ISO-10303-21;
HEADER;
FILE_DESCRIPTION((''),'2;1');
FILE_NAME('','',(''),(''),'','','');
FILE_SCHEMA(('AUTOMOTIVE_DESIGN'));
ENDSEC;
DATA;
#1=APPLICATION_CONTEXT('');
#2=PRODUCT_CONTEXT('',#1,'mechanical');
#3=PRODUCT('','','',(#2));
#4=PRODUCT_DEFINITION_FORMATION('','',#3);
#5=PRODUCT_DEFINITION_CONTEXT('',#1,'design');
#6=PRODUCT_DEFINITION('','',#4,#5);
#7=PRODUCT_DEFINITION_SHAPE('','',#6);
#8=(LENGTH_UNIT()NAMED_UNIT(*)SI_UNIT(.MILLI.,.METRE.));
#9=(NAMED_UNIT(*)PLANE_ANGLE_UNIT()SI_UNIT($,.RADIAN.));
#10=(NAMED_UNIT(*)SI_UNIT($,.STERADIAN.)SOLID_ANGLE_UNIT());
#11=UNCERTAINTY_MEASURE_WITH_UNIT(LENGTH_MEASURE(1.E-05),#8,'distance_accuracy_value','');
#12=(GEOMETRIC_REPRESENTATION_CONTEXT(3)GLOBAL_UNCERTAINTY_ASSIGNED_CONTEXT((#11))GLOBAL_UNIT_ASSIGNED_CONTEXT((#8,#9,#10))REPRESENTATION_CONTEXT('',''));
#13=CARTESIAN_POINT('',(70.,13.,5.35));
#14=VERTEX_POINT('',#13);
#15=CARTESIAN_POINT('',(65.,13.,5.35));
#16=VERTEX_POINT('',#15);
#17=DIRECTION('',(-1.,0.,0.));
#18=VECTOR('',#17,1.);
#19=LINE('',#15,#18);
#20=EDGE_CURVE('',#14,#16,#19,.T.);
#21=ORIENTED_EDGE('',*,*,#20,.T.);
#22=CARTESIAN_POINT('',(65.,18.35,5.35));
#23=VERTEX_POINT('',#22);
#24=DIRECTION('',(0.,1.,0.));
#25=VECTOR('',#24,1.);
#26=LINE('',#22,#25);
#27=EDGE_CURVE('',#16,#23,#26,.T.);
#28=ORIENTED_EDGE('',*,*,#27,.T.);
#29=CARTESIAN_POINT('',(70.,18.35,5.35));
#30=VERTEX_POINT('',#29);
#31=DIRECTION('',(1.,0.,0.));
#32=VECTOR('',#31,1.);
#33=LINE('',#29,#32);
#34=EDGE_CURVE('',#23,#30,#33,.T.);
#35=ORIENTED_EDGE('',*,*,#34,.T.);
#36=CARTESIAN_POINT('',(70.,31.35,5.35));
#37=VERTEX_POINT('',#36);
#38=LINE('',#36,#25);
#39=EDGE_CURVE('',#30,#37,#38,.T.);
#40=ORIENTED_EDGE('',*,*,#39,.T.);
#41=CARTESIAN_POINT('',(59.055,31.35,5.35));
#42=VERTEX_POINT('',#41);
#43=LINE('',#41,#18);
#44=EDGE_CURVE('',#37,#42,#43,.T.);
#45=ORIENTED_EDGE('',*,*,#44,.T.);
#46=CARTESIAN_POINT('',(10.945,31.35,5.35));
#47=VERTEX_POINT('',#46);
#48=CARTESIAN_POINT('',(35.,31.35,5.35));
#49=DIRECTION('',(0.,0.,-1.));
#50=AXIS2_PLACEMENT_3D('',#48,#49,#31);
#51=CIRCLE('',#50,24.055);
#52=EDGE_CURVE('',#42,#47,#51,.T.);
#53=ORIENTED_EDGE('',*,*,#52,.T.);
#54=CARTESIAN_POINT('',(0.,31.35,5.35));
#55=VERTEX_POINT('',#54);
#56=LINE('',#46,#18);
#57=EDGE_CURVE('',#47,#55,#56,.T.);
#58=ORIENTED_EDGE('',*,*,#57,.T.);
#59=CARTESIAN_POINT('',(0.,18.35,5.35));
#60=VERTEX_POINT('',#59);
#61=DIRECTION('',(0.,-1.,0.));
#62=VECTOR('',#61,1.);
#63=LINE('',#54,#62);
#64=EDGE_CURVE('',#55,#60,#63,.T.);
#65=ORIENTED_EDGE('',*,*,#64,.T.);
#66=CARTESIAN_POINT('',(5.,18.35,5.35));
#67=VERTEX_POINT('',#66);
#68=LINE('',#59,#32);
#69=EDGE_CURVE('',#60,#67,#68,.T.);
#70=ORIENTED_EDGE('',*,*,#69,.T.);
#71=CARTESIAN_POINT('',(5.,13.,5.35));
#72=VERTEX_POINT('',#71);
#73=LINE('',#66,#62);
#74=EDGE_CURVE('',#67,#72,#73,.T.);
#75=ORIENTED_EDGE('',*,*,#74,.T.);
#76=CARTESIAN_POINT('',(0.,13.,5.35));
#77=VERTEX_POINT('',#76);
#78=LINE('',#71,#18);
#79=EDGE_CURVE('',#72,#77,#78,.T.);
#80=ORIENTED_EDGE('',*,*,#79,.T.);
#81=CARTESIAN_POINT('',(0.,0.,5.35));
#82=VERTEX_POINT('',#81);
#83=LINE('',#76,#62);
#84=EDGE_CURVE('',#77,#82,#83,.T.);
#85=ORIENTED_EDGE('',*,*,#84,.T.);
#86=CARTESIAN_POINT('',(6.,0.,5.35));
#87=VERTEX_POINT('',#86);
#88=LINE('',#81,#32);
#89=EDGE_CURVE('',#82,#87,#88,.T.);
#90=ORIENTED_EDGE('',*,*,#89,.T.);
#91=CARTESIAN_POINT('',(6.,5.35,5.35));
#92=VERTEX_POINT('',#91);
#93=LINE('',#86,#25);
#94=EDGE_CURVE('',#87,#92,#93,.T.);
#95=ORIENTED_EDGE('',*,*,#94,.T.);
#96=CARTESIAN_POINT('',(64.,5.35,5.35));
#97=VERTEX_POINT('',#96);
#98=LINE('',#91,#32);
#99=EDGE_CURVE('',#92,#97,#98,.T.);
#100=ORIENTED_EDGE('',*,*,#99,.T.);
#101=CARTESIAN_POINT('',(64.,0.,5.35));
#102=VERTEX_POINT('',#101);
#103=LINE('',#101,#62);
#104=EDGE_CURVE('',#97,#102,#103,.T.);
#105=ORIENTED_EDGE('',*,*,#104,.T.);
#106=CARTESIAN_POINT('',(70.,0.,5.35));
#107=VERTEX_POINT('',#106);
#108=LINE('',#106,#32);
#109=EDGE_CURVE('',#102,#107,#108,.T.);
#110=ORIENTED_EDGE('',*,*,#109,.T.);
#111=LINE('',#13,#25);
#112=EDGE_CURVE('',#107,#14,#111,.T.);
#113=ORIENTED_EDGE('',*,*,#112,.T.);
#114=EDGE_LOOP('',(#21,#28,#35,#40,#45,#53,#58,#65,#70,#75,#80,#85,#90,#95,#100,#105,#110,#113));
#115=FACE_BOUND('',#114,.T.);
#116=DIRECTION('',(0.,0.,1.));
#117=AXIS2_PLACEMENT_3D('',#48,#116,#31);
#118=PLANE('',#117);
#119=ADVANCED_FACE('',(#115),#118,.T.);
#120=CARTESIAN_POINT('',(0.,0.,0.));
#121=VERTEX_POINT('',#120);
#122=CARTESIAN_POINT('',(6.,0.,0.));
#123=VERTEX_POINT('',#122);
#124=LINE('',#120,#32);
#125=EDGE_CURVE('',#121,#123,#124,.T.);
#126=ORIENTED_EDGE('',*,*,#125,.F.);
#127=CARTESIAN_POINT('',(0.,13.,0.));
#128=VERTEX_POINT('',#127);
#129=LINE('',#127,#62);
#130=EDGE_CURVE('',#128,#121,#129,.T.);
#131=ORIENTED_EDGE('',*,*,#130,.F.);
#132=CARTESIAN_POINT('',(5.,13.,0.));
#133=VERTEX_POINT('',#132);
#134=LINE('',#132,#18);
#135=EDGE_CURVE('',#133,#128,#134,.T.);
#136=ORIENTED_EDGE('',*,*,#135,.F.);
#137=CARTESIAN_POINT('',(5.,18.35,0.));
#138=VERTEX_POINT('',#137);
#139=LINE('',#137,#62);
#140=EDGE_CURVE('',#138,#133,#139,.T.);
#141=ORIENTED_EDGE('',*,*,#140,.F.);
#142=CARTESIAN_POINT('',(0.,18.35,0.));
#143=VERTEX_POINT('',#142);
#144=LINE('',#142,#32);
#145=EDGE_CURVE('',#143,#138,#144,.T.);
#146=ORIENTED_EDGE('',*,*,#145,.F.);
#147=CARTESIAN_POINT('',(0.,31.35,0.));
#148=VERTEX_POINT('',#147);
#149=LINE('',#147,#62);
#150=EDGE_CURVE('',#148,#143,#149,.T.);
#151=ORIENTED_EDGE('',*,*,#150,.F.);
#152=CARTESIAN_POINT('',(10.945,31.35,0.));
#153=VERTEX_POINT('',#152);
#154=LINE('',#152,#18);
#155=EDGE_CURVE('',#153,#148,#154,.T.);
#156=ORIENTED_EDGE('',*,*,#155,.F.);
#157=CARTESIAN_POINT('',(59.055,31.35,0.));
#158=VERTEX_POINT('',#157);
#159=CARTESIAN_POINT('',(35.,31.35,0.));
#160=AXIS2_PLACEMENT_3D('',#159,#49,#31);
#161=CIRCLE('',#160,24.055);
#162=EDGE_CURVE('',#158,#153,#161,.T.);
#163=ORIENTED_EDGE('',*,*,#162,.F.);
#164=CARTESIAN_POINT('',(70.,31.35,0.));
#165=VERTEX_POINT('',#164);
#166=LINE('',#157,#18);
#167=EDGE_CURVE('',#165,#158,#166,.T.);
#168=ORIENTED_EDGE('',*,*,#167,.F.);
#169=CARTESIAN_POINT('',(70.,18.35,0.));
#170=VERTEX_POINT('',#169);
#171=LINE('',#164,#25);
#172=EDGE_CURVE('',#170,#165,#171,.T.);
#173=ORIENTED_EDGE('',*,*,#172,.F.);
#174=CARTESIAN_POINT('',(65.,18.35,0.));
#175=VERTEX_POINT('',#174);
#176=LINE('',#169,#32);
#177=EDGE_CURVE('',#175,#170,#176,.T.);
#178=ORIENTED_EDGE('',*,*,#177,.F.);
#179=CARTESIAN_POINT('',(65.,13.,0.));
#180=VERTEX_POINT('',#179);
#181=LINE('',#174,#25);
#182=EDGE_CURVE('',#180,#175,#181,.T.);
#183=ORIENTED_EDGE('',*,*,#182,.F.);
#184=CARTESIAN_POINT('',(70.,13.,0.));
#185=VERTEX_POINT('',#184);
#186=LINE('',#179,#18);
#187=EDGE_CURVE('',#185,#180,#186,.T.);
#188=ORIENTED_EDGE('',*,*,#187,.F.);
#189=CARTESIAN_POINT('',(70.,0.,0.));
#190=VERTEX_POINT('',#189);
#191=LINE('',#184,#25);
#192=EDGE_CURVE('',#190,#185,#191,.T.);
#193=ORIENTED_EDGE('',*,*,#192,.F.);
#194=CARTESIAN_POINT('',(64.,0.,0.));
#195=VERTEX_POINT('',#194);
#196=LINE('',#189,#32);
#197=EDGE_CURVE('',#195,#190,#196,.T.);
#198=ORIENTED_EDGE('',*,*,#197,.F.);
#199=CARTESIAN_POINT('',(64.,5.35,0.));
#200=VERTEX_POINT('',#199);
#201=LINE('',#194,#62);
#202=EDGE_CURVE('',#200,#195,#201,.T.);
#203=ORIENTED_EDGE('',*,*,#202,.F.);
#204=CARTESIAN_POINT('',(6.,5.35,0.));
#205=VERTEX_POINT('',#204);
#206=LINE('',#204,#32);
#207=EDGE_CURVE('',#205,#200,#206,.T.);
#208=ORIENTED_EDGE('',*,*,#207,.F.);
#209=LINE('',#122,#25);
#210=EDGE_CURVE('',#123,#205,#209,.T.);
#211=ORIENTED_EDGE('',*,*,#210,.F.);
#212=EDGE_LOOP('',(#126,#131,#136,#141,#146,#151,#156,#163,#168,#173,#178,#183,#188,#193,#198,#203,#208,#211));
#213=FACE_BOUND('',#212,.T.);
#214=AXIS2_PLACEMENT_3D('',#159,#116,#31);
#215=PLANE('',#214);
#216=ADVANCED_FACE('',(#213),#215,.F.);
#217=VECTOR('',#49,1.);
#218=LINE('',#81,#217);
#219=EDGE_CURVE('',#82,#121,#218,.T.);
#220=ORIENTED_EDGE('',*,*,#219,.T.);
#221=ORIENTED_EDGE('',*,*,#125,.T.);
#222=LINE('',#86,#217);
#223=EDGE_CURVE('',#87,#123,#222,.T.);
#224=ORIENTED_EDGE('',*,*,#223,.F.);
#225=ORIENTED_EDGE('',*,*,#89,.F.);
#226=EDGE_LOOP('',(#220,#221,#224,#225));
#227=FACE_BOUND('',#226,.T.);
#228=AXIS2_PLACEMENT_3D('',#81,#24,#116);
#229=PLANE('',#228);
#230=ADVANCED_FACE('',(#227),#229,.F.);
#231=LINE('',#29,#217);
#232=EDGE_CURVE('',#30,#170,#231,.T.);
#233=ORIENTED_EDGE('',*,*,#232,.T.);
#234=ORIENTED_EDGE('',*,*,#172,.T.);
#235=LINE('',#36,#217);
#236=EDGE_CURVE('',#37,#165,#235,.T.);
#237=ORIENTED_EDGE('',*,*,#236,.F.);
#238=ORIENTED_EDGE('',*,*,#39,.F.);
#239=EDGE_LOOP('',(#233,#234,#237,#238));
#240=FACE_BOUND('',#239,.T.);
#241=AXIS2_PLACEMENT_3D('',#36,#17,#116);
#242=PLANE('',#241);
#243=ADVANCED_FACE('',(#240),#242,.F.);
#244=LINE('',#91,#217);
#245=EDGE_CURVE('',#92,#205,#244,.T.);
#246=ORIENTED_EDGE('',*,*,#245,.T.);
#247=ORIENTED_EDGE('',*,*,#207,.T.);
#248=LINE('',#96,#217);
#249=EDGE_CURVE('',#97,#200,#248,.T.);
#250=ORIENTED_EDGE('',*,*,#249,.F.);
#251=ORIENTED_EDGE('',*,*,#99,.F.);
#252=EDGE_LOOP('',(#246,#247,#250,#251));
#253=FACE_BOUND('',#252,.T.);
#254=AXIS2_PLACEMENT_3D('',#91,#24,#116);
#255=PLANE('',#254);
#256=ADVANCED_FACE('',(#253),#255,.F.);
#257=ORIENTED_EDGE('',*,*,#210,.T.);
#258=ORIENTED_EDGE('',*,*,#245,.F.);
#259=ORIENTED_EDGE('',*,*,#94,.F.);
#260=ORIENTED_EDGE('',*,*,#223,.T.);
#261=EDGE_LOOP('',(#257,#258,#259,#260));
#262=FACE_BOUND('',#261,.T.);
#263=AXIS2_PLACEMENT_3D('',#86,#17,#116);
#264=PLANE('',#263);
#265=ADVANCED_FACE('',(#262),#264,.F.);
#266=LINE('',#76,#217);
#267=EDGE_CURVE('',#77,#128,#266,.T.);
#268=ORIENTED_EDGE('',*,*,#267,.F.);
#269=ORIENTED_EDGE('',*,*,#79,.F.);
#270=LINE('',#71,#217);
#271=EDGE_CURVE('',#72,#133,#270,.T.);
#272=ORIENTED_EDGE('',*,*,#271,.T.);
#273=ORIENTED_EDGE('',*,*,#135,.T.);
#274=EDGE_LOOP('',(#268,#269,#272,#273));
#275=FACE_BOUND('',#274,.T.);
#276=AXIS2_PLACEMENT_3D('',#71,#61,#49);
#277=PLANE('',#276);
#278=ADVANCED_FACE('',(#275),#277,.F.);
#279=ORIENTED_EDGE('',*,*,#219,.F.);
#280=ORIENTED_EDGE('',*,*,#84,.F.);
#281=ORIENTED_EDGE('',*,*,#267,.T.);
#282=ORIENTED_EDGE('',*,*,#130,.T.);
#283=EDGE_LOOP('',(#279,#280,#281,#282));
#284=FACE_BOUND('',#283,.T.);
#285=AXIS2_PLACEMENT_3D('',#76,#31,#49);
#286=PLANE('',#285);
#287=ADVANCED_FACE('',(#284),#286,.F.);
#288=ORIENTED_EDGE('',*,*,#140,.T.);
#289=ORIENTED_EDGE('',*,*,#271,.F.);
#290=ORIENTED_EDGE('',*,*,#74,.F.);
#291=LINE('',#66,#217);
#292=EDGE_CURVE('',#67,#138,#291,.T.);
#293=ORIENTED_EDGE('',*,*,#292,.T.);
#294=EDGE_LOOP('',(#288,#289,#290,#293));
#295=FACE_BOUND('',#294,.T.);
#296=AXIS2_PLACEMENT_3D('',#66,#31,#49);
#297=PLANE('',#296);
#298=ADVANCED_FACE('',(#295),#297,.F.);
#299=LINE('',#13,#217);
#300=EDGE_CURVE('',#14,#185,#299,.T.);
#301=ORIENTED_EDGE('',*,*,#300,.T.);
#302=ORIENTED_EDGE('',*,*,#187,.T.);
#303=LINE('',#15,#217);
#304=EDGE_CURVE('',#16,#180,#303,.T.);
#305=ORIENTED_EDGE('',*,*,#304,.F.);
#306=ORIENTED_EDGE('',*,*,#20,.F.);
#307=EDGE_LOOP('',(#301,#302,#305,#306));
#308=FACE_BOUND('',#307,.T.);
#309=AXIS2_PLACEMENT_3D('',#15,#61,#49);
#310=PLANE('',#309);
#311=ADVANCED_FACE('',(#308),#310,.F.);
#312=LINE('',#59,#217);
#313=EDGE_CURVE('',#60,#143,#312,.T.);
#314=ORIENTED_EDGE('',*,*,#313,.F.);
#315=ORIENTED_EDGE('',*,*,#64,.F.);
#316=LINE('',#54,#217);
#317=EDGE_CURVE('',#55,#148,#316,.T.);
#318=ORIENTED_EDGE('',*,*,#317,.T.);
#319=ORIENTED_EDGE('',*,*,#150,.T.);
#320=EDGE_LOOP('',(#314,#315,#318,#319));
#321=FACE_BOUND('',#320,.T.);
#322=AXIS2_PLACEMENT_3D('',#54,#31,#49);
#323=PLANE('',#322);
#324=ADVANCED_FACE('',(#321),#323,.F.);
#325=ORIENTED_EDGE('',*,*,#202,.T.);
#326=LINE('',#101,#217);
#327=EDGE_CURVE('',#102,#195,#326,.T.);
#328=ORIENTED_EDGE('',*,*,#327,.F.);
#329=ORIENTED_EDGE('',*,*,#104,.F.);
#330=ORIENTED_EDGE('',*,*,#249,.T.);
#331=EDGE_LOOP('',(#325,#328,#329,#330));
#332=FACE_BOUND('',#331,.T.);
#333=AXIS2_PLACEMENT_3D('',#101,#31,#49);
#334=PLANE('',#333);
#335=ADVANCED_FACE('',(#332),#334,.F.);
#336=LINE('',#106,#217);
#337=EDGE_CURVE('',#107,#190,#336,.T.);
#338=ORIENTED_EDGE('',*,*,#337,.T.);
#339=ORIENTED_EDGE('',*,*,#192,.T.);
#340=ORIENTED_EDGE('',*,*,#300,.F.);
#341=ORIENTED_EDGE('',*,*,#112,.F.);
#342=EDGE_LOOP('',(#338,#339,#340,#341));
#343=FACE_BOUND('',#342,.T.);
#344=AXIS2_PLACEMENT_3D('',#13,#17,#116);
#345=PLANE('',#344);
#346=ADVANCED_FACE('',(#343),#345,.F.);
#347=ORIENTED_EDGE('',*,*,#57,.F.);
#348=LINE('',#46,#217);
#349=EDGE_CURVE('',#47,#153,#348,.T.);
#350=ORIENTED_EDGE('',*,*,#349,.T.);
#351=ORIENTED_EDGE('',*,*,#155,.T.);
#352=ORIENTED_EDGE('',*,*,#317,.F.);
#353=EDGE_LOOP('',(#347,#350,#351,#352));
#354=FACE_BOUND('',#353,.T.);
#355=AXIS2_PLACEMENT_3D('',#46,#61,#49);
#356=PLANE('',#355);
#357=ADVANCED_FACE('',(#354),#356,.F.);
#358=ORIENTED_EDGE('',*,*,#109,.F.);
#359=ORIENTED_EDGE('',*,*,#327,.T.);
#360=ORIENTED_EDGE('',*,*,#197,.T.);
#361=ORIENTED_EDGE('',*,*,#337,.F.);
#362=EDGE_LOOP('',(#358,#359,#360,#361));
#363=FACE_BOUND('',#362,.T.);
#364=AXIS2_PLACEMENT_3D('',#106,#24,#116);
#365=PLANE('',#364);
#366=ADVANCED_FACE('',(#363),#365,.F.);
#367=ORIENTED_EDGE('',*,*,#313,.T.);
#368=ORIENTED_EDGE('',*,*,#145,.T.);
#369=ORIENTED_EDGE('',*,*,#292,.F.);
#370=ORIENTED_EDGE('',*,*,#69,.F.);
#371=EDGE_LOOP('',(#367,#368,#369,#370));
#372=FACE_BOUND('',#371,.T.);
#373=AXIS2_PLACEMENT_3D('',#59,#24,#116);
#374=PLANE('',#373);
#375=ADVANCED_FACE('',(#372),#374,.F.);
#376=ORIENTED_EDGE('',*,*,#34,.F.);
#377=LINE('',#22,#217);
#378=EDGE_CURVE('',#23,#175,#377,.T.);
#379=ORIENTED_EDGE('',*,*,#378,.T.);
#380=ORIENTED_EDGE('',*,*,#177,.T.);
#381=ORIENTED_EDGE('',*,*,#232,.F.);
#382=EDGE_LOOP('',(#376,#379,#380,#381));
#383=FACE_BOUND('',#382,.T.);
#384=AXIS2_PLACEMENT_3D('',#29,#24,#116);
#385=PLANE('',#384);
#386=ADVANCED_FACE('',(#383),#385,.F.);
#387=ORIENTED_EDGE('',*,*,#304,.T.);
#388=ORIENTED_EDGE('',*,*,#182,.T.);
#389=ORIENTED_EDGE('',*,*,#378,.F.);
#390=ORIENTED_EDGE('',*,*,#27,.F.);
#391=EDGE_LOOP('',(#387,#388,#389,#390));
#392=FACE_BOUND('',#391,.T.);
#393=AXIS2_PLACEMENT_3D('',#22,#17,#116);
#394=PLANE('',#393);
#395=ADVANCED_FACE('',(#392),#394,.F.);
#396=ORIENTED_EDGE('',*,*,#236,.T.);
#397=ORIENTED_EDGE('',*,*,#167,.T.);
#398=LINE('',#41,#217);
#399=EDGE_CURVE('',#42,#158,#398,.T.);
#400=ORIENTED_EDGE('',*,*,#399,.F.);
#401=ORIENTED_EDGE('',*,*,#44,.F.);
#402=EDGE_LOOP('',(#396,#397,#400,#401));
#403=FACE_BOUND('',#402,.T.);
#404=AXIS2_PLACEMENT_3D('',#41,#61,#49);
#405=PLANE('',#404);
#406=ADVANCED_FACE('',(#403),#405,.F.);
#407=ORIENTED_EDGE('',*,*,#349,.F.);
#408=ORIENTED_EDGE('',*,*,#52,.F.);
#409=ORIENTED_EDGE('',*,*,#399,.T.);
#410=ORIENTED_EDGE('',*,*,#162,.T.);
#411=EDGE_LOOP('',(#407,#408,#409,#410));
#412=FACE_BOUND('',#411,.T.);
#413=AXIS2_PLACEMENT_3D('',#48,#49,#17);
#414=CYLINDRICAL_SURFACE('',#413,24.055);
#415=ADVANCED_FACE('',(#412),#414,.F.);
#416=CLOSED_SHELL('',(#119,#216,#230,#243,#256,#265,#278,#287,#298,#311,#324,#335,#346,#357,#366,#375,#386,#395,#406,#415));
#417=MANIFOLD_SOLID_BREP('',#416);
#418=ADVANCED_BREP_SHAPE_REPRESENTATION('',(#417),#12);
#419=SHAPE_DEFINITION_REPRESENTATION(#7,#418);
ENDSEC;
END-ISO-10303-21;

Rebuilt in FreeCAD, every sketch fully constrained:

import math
import FreeCAD as App
import Part
import Sketcher
from FreeCAD import Vector
Q = App.Units.Quantity

doc = App.newDocument("Part")
body = doc.addObject("PartDesign::Body", "Body")

# Sketch on XY plane
sketch1 = body.newObject("Sketcher::SketchObject", "Sketch")
sketch1.AttachmentSupport = (doc.getObject("XY_Plane"), [""])
sketch1.MapMode = "FlatFace"
sketch1.addGeometry([
    Part.LineSegment(Vector(70, 31.35, 0), Vector(59.055, 31.35, 0)),  # 0
    Part.ArcOfCircle(Part.Circle(Vector(35, 31.35, 0), Vector(0, 0, 1), 24.055), math.radians(180), math.radians(360)),  # 1
    Part.LineSegment(Vector(10.945, 31.35, 0), Vector(0, 31.35, 0)),  # 2
    Part.LineSegment(Vector(0, 31.35, 0), Vector(0, 18.35, 0)),  # 3
    Part.LineSegment(Vector(0, 18.35, 0), Vector(5, 18.35, 0)),  # 4
    Part.LineSegment(Vector(5, 18.35, 0), Vector(5, 13, 0)),  # 5
    Part.LineSegment(Vector(5, 13, 0), Vector(0, 13, 0)),  # 6
    Part.LineSegment(Vector(0, 13, 0), Vector(0, 0, 0)),  # 7
    Part.LineSegment(Vector(0, 0, 0), Vector(6, 0, 0)),  # 8
    Part.LineSegment(Vector(6, 0, 0), Vector(6, 5.35, 0)),  # 9
    Part.LineSegment(Vector(6, 5.35, 0), Vector(64, 5.35, 0)),  # 10
    Part.LineSegment(Vector(64, 5.35, 0), Vector(64, 0, 0)),  # 11
    Part.LineSegment(Vector(64, 0, 0), Vector(70, 0, 0)),  # 12
    Part.LineSegment(Vector(70, 0, 0), Vector(70, 13, 0)),  # 13
    Part.LineSegment(Vector(70, 13, 0), Vector(65, 13, 0)),  # 14
    Part.LineSegment(Vector(65, 13, 0), Vector(65, 18.35, 0)),  # 15
    Part.LineSegment(Vector(65, 18.35, 0), Vector(70, 18.35, 0)),  # 16
    Part.LineSegment(Vector(70, 18.35, 0), Vector(70, 31.35, 0)),  # 17
], False)
sketch1.addConstraint([
    Sketcher.Constraint("Coincident", 0, 2, 1, 2),
    Sketcher.Constraint("Coincident", 1, 1, 2, 1),
    Sketcher.Constraint("Coincident", 2, 2, 3, 1),
    Sketcher.Constraint("Coincident", 3, 2, 4, 1),
    Sketcher.Constraint("Coincident", 4, 2, 5, 1),
    Sketcher.Constraint("Coincident", 5, 2, 6, 1),
    Sketcher.Constraint("Coincident", 6, 2, 7, 1),
    Sketcher.Constraint("Coincident", 7, 2, 8, 1),
    Sketcher.Constraint("Coincident", 8, 2, 9, 1),
    Sketcher.Constraint("Coincident", 9, 2, 10, 1),
    Sketcher.Constraint("Coincident", 10, 2, 11, 1),
    Sketcher.Constraint("Coincident", 11, 2, 12, 1),
    Sketcher.Constraint("Coincident", 12, 2, 13, 1),
    Sketcher.Constraint("Coincident", 13, 2, 14, 1),
    Sketcher.Constraint("Coincident", 14, 2, 15, 1),
    Sketcher.Constraint("Coincident", 15, 2, 16, 1),
    Sketcher.Constraint("Coincident", 16, 2, 17, 1),
    Sketcher.Constraint("Coincident", 17, 2, 0, 1),
    Sketcher.Constraint("Horizontal", 0),
    Sketcher.Constraint("Horizontal", 2),
    Sketcher.Constraint("Vertical", 3),
    Sketcher.Constraint("Horizontal", 4),
    Sketcher.Constraint("Vertical", 5),
    Sketcher.Constraint("Horizontal", 6),
    Sketcher.Constraint("Vertical", 7),
    Sketcher.Constraint("Horizontal", 8),
    Sketcher.Constraint("Vertical", 9),
    Sketcher.Constraint("Horizontal", 10),
    Sketcher.Constraint("Vertical", 11),
    Sketcher.Constraint("Horizontal", 12),
    Sketcher.Constraint("Vertical", 13),
    Sketcher.Constraint("Horizontal", 14),
    Sketcher.Constraint("Vertical", 15),
    Sketcher.Constraint("Horizontal", 16),
    Sketcher.Constraint("Vertical", 17),
    Sketcher.Constraint("Coincident", 7, 2, -1, 1),
    Sketcher.Constraint("PointOnObject", 2, 2, -2),
    Sketcher.Constraint("PointOnObject", 11, 2, -1),
    Sketcher.Constraint("Horizontal", 1, 3, 0, 2),
    Sketcher.Constraint("Horizontal", 0, 2, 1, 1),
    Sketcher.Constraint("Horizontal", 6, 2, 13, 2),
    Sketcher.Constraint("Horizontal", 4, 2, 15, 2),
    Sketcher.Constraint("Vertical", 13, 2, 16, 2),
    Sketcher.Constraint("Equal", 0, 2),
    Sketcher.Constraint("Equal", 8, 12),
    Sketcher.Constraint("Equal", 6, 14),
    Sketcher.Constraint("Equal", 3, 7),
    Sketcher.Constraint("Equal", 5, 9),
    Sketcher.Constraint("DistanceX", 4, 1, 4, 2, Q("5 mm")),
    Sketcher.Constraint("DistanceX", 8, 1, 8, 2, Q("6 mm")),
    Sketcher.Constraint("DistanceX", 10, 1, 10, 2, Q("58 mm")),
    Sketcher.Constraint("DistanceY", 3, 2, 3, 1, Q("13 mm")),
    Sketcher.Constraint("Radius", 1, Q("24.055 mm")),
    Sketcher.Constraint("DistanceY", 5, 2, 5, 1, Q("5.35 mm")),
])
pad1 = body.newObject("PartDesign::Pad", "Pad")
pad1.Profile = sketch1
pad1.Length = 5.35

doc.recompute()
